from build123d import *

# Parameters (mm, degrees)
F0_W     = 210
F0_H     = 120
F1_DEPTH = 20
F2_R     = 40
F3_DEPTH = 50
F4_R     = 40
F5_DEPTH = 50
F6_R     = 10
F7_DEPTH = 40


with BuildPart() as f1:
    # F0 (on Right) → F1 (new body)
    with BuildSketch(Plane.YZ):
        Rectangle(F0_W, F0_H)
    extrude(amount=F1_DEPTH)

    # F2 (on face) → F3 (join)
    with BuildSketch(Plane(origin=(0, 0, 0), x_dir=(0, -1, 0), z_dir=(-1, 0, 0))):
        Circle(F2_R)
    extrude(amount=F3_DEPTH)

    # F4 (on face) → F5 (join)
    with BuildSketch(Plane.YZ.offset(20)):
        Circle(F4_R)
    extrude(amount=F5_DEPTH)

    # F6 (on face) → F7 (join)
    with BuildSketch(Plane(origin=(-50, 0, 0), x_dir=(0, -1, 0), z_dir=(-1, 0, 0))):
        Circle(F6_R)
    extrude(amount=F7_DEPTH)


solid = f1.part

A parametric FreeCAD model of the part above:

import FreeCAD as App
import Part
import Sketcher
Q = App.Units.Quantity

doc = App.newDocument("Part")
body = doc.addObject("PartDesign::Body", "Body")

sketch1 = body.newObject("Sketcher::SketchObject", "Sketch")
sketch1.AttachmentSupport = (doc.getObject("YZ_Plane"), [""])
sketch1.MapMode = "FlatFace"
sketch1.addGeometry([
    Part.LineSegment(App.Vector(-105, 60, 0), App.Vector(-105, -60, 0)),
    Part.LineSegment(App.Vector(-105, -60, 0), App.Vector(105, -60, 0)),
    Part.LineSegment(App.Vector(105, -60, 0), App.Vector(105, 60, 0)),
    Part.LineSegment(App.Vector(105, 60, 0), App.Vector(-105, 60, 0)),
], False)
sketch1.addConstraint([
    Sketcher.Constraint("Coincident", 0, 2, 1, 1),
    Sketcher.Constraint("Coincident", 1, 2, 2, 1),
    Sketcher.Constraint("Coincident", 2, 2, 3, 1),
    Sketcher.Constraint("Coincident", 3, 2, 0, 1),
    Sketcher.Constraint("Vertical", 0),
    Sketcher.Constraint("Horizontal", 1),
    Sketcher.Constraint("Vertical", 2),
    Sketcher.Constraint("Horizontal", 3),
    Sketcher.Constraint("Symmetric", 0, 2, 2, 2, -1, 1),
    Sketcher.Constraint("DistanceX", 1, 1, 1, 2, Q("210 mm")),
    Sketcher.Constraint("DistanceY", 0, 2, 0, 1, Q("120 mm")),
])
pad1 = body.newObject("PartDesign::Pad", "Pad")
pad1.Profile = sketch1
pad1.Length = 20

sketch2 = body.newObject("Sketcher::SketchObject", "Sketch001")
sketch2.AttachmentSupport = (doc.getObject("YZ_Plane"), [""])
sketch2.MapMode = "FlatFace"
sketch2.addGeometry(Part.Circle(App.Vector(0, 0, 0), App.Vector(0, 0, 1), 40), False)
sketch2.addConstraint([
    Sketcher.Constraint("Coincident", 0, 3, -1, 1),
    Sketcher.Constraint("Diameter", 0, Q("80 mm")),
])
pad2 = body.newObject("PartDesign::Pad", "Pad001")
pad2.Profile = sketch2
pad2.Length = 50
pad2.Reversed = True

sketch3 = body.newObject("Sketcher::SketchObject", "Sketch002")
sketch3.AttachmentSupport = (doc.getObject("YZ_Plane"), [""])
sketch3.MapMode = "FlatFace"
sketch3.AttachmentOffset = App.Placement(App.Vector(0, 0, 20), App.Rotation())
sketch3.addGeometry(Part.Circle(App.Vector(0, 0, 0), App.Vector(0, 0, 1), 40), False)
sketch3.addConstraint([
    Sketcher.Constraint("Coincident", 0, 3, -1, 1),
    Sketcher.Constraint("Diameter", 0, Q("80 mm")),
])
pad3 = body.newObject("PartDesign::Pad", "Pad002")
pad3.Profile = sketch3
pad3.Length = 50

sketch4 = body.newObject("Sketcher::SketchObject", "Sketch003")
sketch4.AttachmentSupport = (doc.getObject("YZ_Plane"), [""])
sketch4.MapMode = "FlatFace"
sketch4.AttachmentOffset = App.Placement(App.Vector(0, 0, -50), App.Rotation())
sketch4.addGeometry(Part.Circle(App.Vector(0, 0, 0), App.Vector(0, 0, 1), 10), False)
sketch4.addConstraint([
    Sketcher.Constraint("Coincident", 0, 3, -1, 1),
    Sketcher.Constraint("Diameter", 0, Q("20 mm")),
])
pad4 = body.newObject("PartDesign::Pad", "Pad003")
pad4.Profile = sketch4
pad4.Length = 40
pad4.Reversed = True

doc.recompute()
